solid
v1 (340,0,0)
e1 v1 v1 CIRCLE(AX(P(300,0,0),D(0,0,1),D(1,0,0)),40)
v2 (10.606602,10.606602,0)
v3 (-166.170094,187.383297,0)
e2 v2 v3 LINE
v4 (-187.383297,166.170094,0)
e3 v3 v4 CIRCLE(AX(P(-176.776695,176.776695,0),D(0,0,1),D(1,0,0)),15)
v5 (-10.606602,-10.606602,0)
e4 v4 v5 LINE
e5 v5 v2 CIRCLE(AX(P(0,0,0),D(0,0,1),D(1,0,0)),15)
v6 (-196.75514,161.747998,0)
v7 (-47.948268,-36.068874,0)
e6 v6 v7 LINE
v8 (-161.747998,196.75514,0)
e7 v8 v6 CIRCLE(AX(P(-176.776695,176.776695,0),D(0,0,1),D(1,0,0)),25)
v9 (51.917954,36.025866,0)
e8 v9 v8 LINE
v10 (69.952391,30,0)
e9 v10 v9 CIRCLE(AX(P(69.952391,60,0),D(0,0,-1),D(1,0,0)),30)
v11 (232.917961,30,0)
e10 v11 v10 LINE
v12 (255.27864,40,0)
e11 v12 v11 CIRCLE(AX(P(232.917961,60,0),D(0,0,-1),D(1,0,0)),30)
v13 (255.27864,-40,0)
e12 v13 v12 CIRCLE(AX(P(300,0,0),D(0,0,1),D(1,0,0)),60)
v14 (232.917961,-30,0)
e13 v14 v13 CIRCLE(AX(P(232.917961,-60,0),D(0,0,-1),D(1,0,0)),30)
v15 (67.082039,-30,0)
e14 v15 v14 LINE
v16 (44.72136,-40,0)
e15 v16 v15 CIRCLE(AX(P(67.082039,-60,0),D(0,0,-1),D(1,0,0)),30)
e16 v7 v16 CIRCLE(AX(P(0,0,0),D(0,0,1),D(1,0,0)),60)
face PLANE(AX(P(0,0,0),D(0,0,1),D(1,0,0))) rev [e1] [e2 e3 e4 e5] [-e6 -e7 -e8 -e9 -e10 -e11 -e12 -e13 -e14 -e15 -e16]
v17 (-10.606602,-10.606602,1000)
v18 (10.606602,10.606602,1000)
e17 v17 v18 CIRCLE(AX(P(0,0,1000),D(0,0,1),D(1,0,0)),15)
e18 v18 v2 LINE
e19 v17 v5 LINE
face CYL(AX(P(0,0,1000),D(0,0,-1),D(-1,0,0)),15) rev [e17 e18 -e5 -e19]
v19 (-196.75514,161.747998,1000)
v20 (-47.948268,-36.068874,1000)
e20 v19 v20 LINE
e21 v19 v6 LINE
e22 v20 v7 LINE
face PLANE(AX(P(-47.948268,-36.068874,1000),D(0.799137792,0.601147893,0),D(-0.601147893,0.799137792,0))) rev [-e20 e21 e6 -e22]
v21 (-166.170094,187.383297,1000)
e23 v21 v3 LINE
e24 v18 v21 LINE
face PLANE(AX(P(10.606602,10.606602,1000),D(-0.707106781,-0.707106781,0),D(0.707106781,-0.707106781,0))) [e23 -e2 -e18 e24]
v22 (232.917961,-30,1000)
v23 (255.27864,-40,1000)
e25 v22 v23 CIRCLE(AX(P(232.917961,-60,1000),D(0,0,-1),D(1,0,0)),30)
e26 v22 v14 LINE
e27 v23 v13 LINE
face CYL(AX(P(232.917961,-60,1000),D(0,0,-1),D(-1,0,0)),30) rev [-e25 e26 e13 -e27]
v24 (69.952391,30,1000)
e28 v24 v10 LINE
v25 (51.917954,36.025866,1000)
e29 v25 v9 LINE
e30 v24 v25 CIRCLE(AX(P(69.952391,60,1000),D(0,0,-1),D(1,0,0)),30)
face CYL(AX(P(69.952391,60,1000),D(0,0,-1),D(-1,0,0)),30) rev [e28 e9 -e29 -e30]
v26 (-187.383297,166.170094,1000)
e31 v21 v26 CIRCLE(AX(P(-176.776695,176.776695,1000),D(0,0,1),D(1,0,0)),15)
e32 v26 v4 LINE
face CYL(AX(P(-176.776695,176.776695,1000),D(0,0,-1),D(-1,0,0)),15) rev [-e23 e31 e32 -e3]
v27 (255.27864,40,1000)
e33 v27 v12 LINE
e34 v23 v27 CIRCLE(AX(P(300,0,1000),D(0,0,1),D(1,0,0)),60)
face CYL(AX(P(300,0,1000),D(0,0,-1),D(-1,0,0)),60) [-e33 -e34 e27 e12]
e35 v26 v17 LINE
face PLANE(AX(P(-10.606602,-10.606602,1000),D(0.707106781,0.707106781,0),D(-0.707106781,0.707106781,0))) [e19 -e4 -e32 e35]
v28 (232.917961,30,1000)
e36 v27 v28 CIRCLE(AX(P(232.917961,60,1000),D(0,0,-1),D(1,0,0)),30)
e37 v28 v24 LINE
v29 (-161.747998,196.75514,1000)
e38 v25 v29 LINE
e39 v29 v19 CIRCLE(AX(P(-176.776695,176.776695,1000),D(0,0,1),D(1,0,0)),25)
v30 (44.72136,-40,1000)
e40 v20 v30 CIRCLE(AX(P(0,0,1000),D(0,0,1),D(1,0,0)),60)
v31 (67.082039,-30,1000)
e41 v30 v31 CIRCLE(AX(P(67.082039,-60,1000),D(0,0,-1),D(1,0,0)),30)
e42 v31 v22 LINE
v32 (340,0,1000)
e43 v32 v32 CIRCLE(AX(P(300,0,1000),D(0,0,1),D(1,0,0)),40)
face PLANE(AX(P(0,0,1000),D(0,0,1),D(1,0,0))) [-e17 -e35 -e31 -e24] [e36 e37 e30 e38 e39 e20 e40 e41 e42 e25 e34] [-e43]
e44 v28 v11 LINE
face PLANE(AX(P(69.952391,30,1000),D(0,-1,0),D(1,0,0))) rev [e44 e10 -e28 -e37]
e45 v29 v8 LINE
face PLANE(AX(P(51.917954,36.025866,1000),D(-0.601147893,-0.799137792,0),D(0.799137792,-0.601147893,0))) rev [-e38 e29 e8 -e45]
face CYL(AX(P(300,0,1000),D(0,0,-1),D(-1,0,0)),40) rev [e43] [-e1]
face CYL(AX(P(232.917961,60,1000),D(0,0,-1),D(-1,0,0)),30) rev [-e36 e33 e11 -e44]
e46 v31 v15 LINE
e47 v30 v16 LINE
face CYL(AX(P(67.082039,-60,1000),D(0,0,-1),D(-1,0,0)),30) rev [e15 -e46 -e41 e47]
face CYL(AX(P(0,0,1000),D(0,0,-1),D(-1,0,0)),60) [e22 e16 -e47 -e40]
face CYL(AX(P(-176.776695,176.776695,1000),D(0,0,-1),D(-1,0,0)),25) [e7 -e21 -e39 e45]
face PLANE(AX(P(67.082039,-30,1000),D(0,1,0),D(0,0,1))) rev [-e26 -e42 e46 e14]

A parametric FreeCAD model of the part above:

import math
import FreeCAD as App
import Part
import Sketcher
Q = App.Units.Quantity

doc = App.newDocument("Part")
body = doc.addObject("PartDesign::Body", "Body")

# Sketch on XY plane
sketch1 = doc.addObject("Sketcher::SketchObject", "Sketch")
body.addObject(sketch1)
sketch1.AttachmentSupport = (doc.XY_Plane, [""])
sketch1.MapMode = "FlatFace"
sketch1.addGeometry([
    Part.LineSegment(App.Vector(51.917954, 36.025866, 0), App.Vector(-161.747998, 196.75514, 0)),  # 0
    Part.ArcOfCircle(Part.Circle(App.Vector(-176.776695, 176.776695, 0), App.Vector(0, 0, 1), 25), math.radians(53.047846), math.radians(216.952154)),  # 1
    Part.LineSegment(App.Vector(-196.75514, 161.747998, 0), App.Vector(-47.948268, -36.068874, 0)),  # 2
    Part.ArcOfCircle(Part.Circle(App.Vector(0, 0, 0), App.Vector(0, 0, 1), 60), math.radians(-143.047846), math.radians(-41.810315)),  # 3
    Part.ArcOfCircle(Part.Circle(App.Vector(67.082039, -60, 0), App.Vector(0, 0, 1), 30), math.radians(90), math.radians(138.189685)),  # 4
    Part.LineSegment(App.Vector(67.082039, -30, 0), App.Vector(232.917961, -30, 0)),  # 5
    Part.ArcOfCircle(Part.Circle(App.Vector(232.917961, -60, 0), App.Vector(0, 0, 1), 30), math.radians(41.810315), math.radians(90)),  # 6
    Part.ArcOfCircle(Part.Circle(App.Vector(300, 0, 0), App.Vector(0, 0, 1), 60), math.radians(-138.189685), math.radians(138.189685)),  # 7
    Part.ArcOfCircle(Part.Circle(App.Vector(232.917961, 60, 0), App.Vector(0, 0, 1), 30), math.radians(-90), math.radians(-41.810315)),  # 8
    Part.LineSegment(App.Vector(232.917961, 30, 0), App.Vector(69.952391, 30, 0)),  # 9
    Part.ArcOfCircle(Part.Circle(App.Vector(69.952391, 60, 0), App.Vector(0, 0, 1), 30), math.radians(-126.952154), math.radians(-90)),  # 10
    Part.Circle(App.Vector(300, 0, 0), App.Vector(0, 0, 1), 40),  # 11
    Part.ArcOfCircle(Part.Circle(App.Vector(0, 0, 0), App.Vector(0, 0, 1), 15), math.radians(-135), math.radians(45)),  # 12
    Part.LineSegment(App.Vector(-10.606602, -10.606602, 0), App.Vector(-187.383297, 166.170094, 0)),  # 13
    Part.ArcOfCircle(Part.Circle(App.Vector(-176.776695, 176.776695, 0), App.Vector(0, 0, 1), 15), math.radians(45), math.radians(225)),  # 14
    Part.LineSegment(App.Vector(-166.170094, 187.383297, 0), App.Vector(10.606602, 10.606602, 0)),  # 15
], False)
sketch1.addConstraint([
    Sketcher.Constraint("Tangent", 0, 2, 1, 1),
    Sketcher.Constraint("Tangent", 1, 2, 2, 1),
    Sketcher.Constraint("Tangent", 2, 2, 3, 1),
    Sketcher.Constraint("Tangent", 3, 2, 4, 2),
    Sketcher.Constraint("Tangent", 4, 1, 5, 1),
    Sketcher.Constraint("Tangent", 5, 2, 6, 2),
    Sketcher.Constraint("Tangent", 6, 1, 7, 1),
    Sketcher.Constraint("Tangent", 7, 2, 8, 2),
    Sketcher.Constraint("Tangent", 8, 1, 9, 1),
    Sketcher.Constraint("Tangent", 9, 2, 10, 2),
    Sketcher.Constraint("Tangent", 10, 1, 0, 1),
    Sketcher.Constraint("Tangent", 12, 1, 13, 1),
    Sketcher.Constraint("Tangent", 13, 2, 14, 2),
    Sketcher.Constraint("Tangent", 14, 1, 15, 1),
    Sketcher.Constraint("Tangent", 15, 2, 12, 2),
    Sketcher.Constraint("Horizontal", 5),
    Sketcher.Constraint("Horizontal", 9),
    Sketcher.Constraint("Coincident", 3, 3, -1, 1),
    Sketcher.Constraint("Coincident", 12, 3, -1, 1),
    Sketcher.Constraint("Coincident", 11, 3, 7, 3),
    Sketcher.Constraint("Coincident", 14, 3, 1, 3),
    Sketcher.Constraint("Equal", 4, 6),
    Sketcher.Constraint("Equal", 3, 7),
    Sketcher.Constraint("Equal", 6, 8),
    Sketcher.Constraint("Equal", 8, 10),
    Sketcher.Constraint("Equal", 12, 14),
    Sketcher.Constraint("Symmetric", 6, 3, 8, 3, -1),
    Sketcher.Constraint("Diameter", 11, 80.0),
    Sketcher.Constraint("Radius", 1, 25.0),
    Sketcher.Constraint("Radius", 3, 60.0),
    Sketcher.Constraint("Radius", 4, 30.0),
    Sketcher.Constraint("Radius", 12, 15.0),
    Sketcher.Constraint("Angle", 13, Q("135 deg")),
    Sketcher.Constraint("Distance", 13, 250.0),
    Sketcher.Constraint("DistanceY", 4, 3, -1, 1, 60.0),
    Sketcher.Constraint("DistanceX", -1, 1, 7, 3, 300.0),
    Sketcher.Constraint("Distance", 0, 267.370602),
])
pad1 = doc.addObject("PartDesign::Pad", "Pad")
body.addObject(pad1)
pad1.Profile = sketch1
pad1.Length = 1000

doc.recompute()
